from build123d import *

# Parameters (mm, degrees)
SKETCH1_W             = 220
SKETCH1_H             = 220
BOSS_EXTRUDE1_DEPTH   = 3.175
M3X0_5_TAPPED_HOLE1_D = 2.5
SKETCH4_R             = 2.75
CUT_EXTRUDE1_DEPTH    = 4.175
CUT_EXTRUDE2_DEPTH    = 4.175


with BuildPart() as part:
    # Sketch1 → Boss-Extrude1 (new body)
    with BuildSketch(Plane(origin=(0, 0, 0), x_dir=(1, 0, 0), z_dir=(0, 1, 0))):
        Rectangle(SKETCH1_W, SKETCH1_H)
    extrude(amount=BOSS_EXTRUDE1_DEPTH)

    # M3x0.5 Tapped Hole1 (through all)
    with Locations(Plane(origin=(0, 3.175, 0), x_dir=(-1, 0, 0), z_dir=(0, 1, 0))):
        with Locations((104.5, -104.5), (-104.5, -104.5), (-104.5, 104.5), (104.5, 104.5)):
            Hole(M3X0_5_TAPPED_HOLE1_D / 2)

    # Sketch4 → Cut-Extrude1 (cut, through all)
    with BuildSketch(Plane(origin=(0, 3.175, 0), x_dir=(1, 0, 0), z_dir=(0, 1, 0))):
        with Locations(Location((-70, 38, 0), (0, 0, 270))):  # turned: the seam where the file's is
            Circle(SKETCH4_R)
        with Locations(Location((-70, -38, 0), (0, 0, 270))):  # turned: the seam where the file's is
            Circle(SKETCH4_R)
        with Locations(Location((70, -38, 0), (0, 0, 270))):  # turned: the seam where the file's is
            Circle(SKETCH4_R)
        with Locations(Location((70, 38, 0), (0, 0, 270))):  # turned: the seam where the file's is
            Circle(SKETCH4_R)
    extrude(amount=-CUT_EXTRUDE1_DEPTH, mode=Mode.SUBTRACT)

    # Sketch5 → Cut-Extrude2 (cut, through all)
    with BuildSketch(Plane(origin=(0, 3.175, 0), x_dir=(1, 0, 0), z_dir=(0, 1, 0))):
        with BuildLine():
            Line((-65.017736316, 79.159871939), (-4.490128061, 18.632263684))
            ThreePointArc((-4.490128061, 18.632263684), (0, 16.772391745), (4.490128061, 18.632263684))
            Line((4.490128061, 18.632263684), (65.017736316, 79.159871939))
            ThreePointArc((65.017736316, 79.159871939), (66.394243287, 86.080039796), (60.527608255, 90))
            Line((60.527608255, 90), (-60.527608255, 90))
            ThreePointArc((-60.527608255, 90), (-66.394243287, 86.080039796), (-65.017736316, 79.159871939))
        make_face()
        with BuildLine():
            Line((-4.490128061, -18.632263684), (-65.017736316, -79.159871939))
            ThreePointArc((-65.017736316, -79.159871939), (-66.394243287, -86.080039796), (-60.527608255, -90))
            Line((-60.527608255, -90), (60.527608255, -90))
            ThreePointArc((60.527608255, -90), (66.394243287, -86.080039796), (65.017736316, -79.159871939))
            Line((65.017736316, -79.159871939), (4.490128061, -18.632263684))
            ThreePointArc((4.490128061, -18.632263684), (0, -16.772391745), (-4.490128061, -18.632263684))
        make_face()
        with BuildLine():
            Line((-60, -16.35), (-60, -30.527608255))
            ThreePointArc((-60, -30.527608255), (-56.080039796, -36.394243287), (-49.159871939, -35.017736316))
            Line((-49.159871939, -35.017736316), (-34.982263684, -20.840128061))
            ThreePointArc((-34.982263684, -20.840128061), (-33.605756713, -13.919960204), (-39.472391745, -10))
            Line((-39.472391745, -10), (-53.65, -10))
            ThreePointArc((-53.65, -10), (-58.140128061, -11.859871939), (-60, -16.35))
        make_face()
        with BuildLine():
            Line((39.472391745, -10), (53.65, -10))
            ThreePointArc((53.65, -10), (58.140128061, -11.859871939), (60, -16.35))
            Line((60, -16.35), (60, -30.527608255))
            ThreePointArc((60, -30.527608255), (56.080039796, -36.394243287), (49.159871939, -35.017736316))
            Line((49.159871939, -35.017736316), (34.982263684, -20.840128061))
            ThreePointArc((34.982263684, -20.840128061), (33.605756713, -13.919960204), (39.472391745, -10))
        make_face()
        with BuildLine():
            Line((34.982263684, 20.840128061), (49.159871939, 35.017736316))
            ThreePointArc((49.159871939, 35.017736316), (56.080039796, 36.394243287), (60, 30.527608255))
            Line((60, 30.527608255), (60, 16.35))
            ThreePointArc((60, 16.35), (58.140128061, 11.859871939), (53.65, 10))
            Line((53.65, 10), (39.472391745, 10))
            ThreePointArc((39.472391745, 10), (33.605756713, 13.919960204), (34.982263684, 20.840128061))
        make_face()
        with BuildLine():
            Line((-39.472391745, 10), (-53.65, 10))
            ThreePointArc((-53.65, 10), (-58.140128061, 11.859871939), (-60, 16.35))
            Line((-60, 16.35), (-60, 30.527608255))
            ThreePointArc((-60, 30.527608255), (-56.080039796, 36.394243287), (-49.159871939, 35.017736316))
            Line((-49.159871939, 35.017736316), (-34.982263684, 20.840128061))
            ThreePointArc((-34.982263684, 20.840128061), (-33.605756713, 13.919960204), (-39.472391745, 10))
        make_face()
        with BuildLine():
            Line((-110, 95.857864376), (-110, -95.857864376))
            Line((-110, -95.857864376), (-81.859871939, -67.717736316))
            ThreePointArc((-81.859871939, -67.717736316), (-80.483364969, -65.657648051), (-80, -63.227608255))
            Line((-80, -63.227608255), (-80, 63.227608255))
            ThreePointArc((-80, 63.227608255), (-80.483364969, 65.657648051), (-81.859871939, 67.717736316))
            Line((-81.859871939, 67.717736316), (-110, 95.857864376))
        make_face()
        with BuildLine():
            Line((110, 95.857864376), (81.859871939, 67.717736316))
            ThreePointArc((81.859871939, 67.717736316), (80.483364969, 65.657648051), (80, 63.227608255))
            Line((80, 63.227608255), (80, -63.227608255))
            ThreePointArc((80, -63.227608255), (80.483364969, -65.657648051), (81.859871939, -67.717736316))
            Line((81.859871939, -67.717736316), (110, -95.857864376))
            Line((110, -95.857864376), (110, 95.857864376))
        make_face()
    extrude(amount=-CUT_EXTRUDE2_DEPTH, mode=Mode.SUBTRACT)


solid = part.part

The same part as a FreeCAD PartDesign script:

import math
import FreeCAD as App
import Part
import Sketcher
Q = App.Units.Quantity

doc = App.newDocument("Part")
body = doc.addObject("PartDesign::Body", "Body")

# Sketch on XZ plane
sketch1 = body.newObject("Sketcher::SketchObject", "Sketch")
sketch1.AttachmentSupport = (doc.getObject("XZ_Plane"), [""])
sketch1.MapMode = "FlatFace"
sketch1.addGeometry([
    Part.LineSegment(App.Vector(-110, -110, 0), App.Vector(-110, 110, 0)),
    Part.LineSegment(App.Vector(-110, 110, 0), App.Vector(110, 110, 0)),
    Part.LineSegment(App.Vector(110, 110, 0), App.Vector(110, -110, 0)),
    Part.LineSegment(App.Vector(110, -110, 0), App.Vector(-110, -110, 0)),
], False)
sketch1.addConstraint([
    Sketcher.Constraint("Coincident", 0, 2, 1, 1),
    Sketcher.Constraint("Coincident", 1, 2, 2, 1),
    Sketcher.Constraint("Coincident", 2, 2, 3, 1),
    Sketcher.Constraint("Coincident", 3, 2, 0, 1),
    Sketcher.Constraint("Vertical", 0),
    Sketcher.Constraint("Horizontal", 1),
    Sketcher.Constraint("Vertical", 2),
    Sketcher.Constraint("Horizontal", 3),
    Sketcher.Constraint("Symmetric", 0, 2, 2, 2, -1, 1),
    Sketcher.Constraint("Equal", 3, 0),
    Sketcher.Constraint("DistanceX", 1, 1, 1, 2, Q("220 mm")),
])
pad1 = body.newObject("PartDesign::Pad", "Pad")
pad1.Profile = sketch1
pad1.Length = 3.175
pad1.Reversed = True

# Sketch on XZ plane
sketch2 = body.newObject("Sketcher::SketchObject", "Sketch001")
sketch2.AttachmentSupport = (doc.getObject("XZ_Plane"), [""])
sketch2.MapMode = "FlatFace"
sketch2.AttachmentOffset = App.Placement(App.Vector(0, 0, -3.175), App.Rotation())
sketch2.addGeometry([
    Part.Circle(App.Vector(-104.5, -104.5, 0), App.Vector(0, 0, 1), 1.2),
    Part.Circle(App.Vector(104.5, -104.5, 0), App.Vector(0, 0, 1), 1.2),
    Part.Circle(App.Vector(104.5, 104.5, 0), App.Vector(0, 0, 1), 1.2),
    Part.Circle(App.Vector(-104.5, 104.5, 0), App.Vector(0, 0, 1), 1.2),
], False)
sketch2.addConstraint([
    Sketcher.Constraint("Equal", 0, 1),
    Sketcher.Constraint("Equal", 1, 2),
    Sketcher.Constraint("Equal", 2, 3),
    Sketcher.Constraint("Symmetric", 0, 3, 2, 3, -1, 1),
    Sketcher.Constraint("Symmetric", 1, 3, 3, 3, -1, 1),
    Sketcher.Constraint("Symmetric", 0, 3, 1, 3, -2),
    Sketcher.Constraint("Diameter", 0, Q("2.5 mm")),
    Sketcher.Constraint("DistanceX", 0, 3, 1, 3, Q("209 mm")),
    Sketcher.Constraint("DistanceY", 1, 3, 2, 3, Q("209 mm")),
])
doc.recompute()
hole = body.newObject("PartDesign::Hole", "Hole")
hole.Profile = sketch2
hole.ThreadType = "None"
hole.Diameter = 2.5
hole.DepthType = "ThroughAll"
hole.Reversed = True

# Sketch on XZ plane
sketch3 = body.newObject("Sketcher::SketchObject", "Sketch002")
sketch3.AttachmentSupport = (doc.getObject("XZ_Plane"), [""])
sketch3.MapMode = "FlatFace"
sketch3.AttachmentOffset = App.Placement(App.Vector(0, 0, -3.175), App.Rotation())
sketch3.addGeometry([
    Part.Circle(App.Vector(-70, -38, 0), App.Vector(0, 0, 1), 2.8),
    Part.Circle(App.Vector(-70, 38, 0), App.Vector(0, 0, 1), 2.8),
    Part.Circle(App.Vector(70, 38, 0), App.Vector(0, 0, 1), 2.8),
    Part.Circle(App.Vector(70, -38, 0), App.Vector(0, 0, 1), 2.8),
], False)
sketch3.addConstraint([
    Sketcher.Constraint("Equal", 0, 1),
    Sketcher.Constraint("Equal", 1, 2),
    Sketcher.Constraint("Equal", 2, 3),
    Sketcher.Constraint("Symmetric", 0, 3, 2, 3, -1, 1),
    Sketcher.Constraint("Symmetric", 1, 3, 3, 3, -1, 1),
    Sketcher.Constraint("Symmetric", 1, 3, 2, 3, -2),
    Sketcher.Constraint("Diameter", 0, Q("5.5 mm")),
    Sketcher.Constraint("DistanceX", 0, 3, -1, 1, Q("70 mm")),
    Sketcher.Constraint("DistanceY", 0, 3, -1, 1, Q("38 mm")),
])
pocket1 = body.newObject("PartDesign::Pocket", "Pocket")
pocket1.Profile = sketch3
pocket1.Type = "ThroughAll"
pocket1.Reversed = True

# Sketch on XZ plane
sketch4 = body.newObject("Sketcher::SketchObject", "Sketch003")
sketch4.AttachmentSupport = (doc.getObject("XZ_Plane"), [""])
sketch4.MapMode = "FlatFace"
sketch4.AttachmentOffset = App.Placement(App.Vector(0, 0, -3.175), App.Rotation())
sketch4.addGeometry([
    Part.LineSegment(App.Vector(-65, -79.2, 0), App.Vector(-4.5, -18.6, 0)),  # 0
    Part.ArcOfCircle(Part.Circle(App.Vector(0, -23.1, 0), App.Vector(0, 0, 1), 6.4), math.radians(45), math.radians(135)),  # 1
    Part.LineSegment(App.Vector(4.5, -18.6, 0), App.Vector(65, -79.2, 0)),  # 2
    Part.ArcOfCircle(Part.Circle(App.Vector(60.5, -83.7, 0), App.Vector(0, 0, 1), 6.3), math.radians(-90), math.radians(45)),  # 3
    Part.LineSegment(App.Vector(60.5, -90, 0), App.Vector(-60.5, -90, 0)),  # 4
    Part.ArcOfCircle(Part.Circle(App.Vector(-60.5, -83.7, 0), App.Vector(0, 0, 1), 6.3), math.radians(135), math.radians(270)),  # 5
    Part.LineSegment(App.Vector(-4.5, 18.6, 0), App.Vector(-65, 79.2, 0)),  # 6
    Part.ArcOfCircle(Part.Circle(App.Vector(-60.5, 83.7, 0), App.Vector(0, 0, 1), 6.3), math.radians(90), math.radians(225)),  # 7
    Part.LineSegment(App.Vector(-60.5, 90, 0), App.Vector(60.5, 90, 0)),  # 8
    Part.ArcOfCircle(Part.Circle(App.Vector(60.5, 83.7, 0), App.Vector(0, 0, 1), 6.3), math.radians(-45), math.radians(90)),  # 9
    Part.LineSegment(App.Vector(65, 79.2, 0), App.Vector(4.5, 18.6, 0)),  # 10
    Part.ArcOfCircle(Part.Circle(App.Vector(0, 23.1, 0), App.Vector(0, 0, 1), 6.4), math.radians(-135), math.radians(-45)),  # 11
    Part.LineSegment(App.Vector(-60, 16.4, 0), App.Vector(-60, 30.5, 0)),  # 12
    Part.ArcOfCircle(Part.Circle(App.Vector(-53.6, 30.5, 0), App.Vector(0, 0, 1), 6.3), math.radians(45), math.radians(180)),  # 13
    Part.LineSegment(App.Vector(-49.2, 35, 0), App.Vector(-35, 20.8, 0)),  # 14
    Part.ArcOfCircle(Part.Circle(App.Vector(-39.5, 16.4, 0), App.Vector(0, 0, 1), 6.3), math.radians(-90), math.radians(45)),  # 15
    Part.LineSegment(App.Vector(-39.5, 10, 0), App.Vector(-53.6, 10, 0)),  # 16
    Part.ArcOfCircle(Part.Circle(App.Vector(-53.7, 16.3, 0), App.Vector(0, 0, 1), 6.3), math.radians(180), math.radians(270)),  # 17
    Part.LineSegment(App.Vector(53.6, 10, 0), App.Vector(39.5, 10, 0)),  # 18
    Part.ArcOfCircle(Part.Circle(App.Vector(39.5, 16.4, 0), App.Vector(0, 0, 1), 6.3), math.radians(135), math.radians(270)),  # 19
    Part.LineSegment(App.Vector(35, 20.8, 0), App.Vector(49.2, 35, 0)),  # 20
    Part.ArcOfCircle(Part.Circle(App.Vector(53.6, 30.5, 0), App.Vector(0, 0, 1), 6.3), math.radians(0), math.radians(135)),  # 21
    Part.LineSegment(App.Vector(60, 30.5, 0), App.Vector(60, 16.4, 0)),  # 22
    Part.ArcOfCircle(Part.Circle(App.Vector(53.7, 16.3, 0), App.Vector(0, 0, 1), 6.3), math.radians(-90), math.radians(0)),  # 23
    Part.LineSegment(App.Vector(49.2, -35, 0), App.Vector(35, -20.8, 0)),  # 24
    Part.ArcOfCircle(Part.Circle(App.Vector(39.5, -16.4, 0), App.Vector(0, 0, 1), 6.3), math.radians(90), math.radians(225)),  # 25
    Part.LineSegment(App.Vector(39.5, -10, 0), App.Vector(53.6, -10, 0)),  # 26
    Part.ArcOfCircle(Part.Circle(App.Vector(53.7, -16.3, 0), App.Vector(0, 0, 1), 6.3), math.radians(0), math.radians(90)),  # 27
    Part.LineSegment(App.Vector(60, -16.4, 0), App.Vector(60, -30.5, 0)),  # 28
    Part.ArcOfCircle(Part.Circle(App.Vector(53.6, -30.5, 0), App.Vector(0, 0, 1), 6.3), math.radians(-135), math.radians(0)),  # 29
    Part.LineSegment(App.Vector(-53.6, -10, 0), App.Vector(-39.5, -10, 0)),  # 30
    Part.ArcOfCircle(Part.Circle(App.Vector(-39.5, -16.4, 0), App.Vector(0, 0, 1), 6.3), math.radians(-45), math.radians(90)),  # 31
    Part.LineSegment(App.Vector(-35, -20.8, 0), App.Vector(-49.2, -35, 0)),  # 32
    Part.ArcOfCircle(Part.Circle(App.Vector(-53.6, -30.5, 0), App.Vector(0, 0, 1), 6.3), math.radians(180), math.radians(315)),  # 33
    Part.LineSegment(App.Vector(-60, -30.5, 0), App.Vector(-60, -16.4, 0)),  # 34
    Part.ArcOfCircle(Part.Circle(App.Vector(-53.7, -16.3, 0), App.Vector(0, 0, 1), 6.3), math.radians(90), math.radians(180)),  # 35
    Part.LineSegment(App.Vector(-110, -95.9, 0), App.Vector(-110, 95.9, 0)),  # 36
    Part.LineSegment(App.Vector(-110, 95.9, 0), App.Vector(-81.9, 67.7, 0)),  # 37
    Part.ArcOfCircle(Part.Circle(App.Vector(-86.4, 63.2, 0), App.Vector(0, 0, 1), 6.4), math.radians(0), math.radians(45)),  # 38
    Part.LineSegment(App.Vector(-80, 63.2, 0), App.Vector(-80, -63.2, 0)),  # 39
    Part.ArcOfCircle(Part.Circle(App.Vector(-86.4, -63.2, 0), App.Vector(0, 0, 1), 6.4), math.radians(-45), math.radians(0)),  # 40
    Part.LineSegment(App.Vector(-81.9, -67.7, 0), App.Vector(-110, -95.9, 0)),  # 41
    Part.LineSegment(App.Vector(110, -95.9, 0), App.Vector(81.9, -67.7, 0)),  # 42
    Part.ArcOfCircle(Part.Circle(App.Vector(86.4, -63.2, 0), App.Vector(0, 0, 1), 6.4), math.radians(-180), math.radians(-135)),  # 43
    Part.LineSegment(App.Vector(80, -63.2, 0), App.Vector(80, 63.2, 0)),  # 44
    Part.ArcOfCircle(Part.Circle(App.Vector(86.4, 63.2, 0), App.Vector(0, 0, 1), 6.4), math.radians(135), math.radians(180)),  # 45
    Part.LineSegment(App.Vector(81.9, 67.7, 0), App.Vector(110, 95.9, 0)),  # 46
    Part.LineSegment(App.Vector(110, 95.9, 0), App.Vector(110, -95.9, 0)),  # 47
], False)
sketch4.addConstraint([
    Sketcher.Constraint("Tangent", 0, 2, 1, 2),
    Sketcher.Constraint("Tangent", 1, 1, 2, 1),
    Sketcher.Constraint("Tangent", 2, 2, 3, 2),
    Sketcher.Constraint("Tangent", 3, 1, 4, 1),
    Sketcher.Constraint("Tangent", 4, 2, 5, 2),
    Sketcher.Constraint("Tangent", 5, 1, 0, 1),
    Sketcher.Constraint("Tangent", 6, 2, 7, 2),
    Sketcher.Constraint("Tangent", 7, 1, 8, 1),
    Sketcher.Constraint("Tangent", 8, 2, 9, 2),
    Sketcher.Constraint("Tangent", 9, 1, 10, 1),
    Sketcher.Constraint("Tangent", 10, 2, 11, 2),
    Sketcher.Constraint("Tangent", 11, 1, 6, 1),
    Sketcher.Constraint("Tangent", 12, 2, 13, 2),
    Sketcher.Constraint("Tangent", 13, 1, 14, 1),
    Sketcher.Constraint("Tangent", 14, 2, 15, 2),
    Sketcher.Constraint("Tangent", 15, 1, 16, 1),
    Sketcher.Constraint("Tangent", 16, 2, 17, 2),
    Sketcher.Constraint("Tangent", 17, 1, 12, 1),
    Sketcher.Constraint("Tangent", 18, 2, 19, 2),
    Sketcher.Constraint("Tangent", 19, 1, 20, 1),
    Sketcher.Constraint("Tangent", 20, 2, 21, 2),
    Sketcher.Constraint("Tangent", 21, 1, 22, 1),
    Sketcher.Constraint("Tangent", 22, 2, 23, 2),
    Sketcher.Constraint("Tangent", 23, 1, 18, 1),
    Sketcher.Constraint("Tangent", 24, 2, 25, 2),
    Sketcher.Constraint("Tangent", 25, 1, 26, 1),
    Sketcher.Constraint("Tangent", 26, 2, 27, 2),
    Sketcher.Constraint("Tangent", 27, 1, 28, 1),
    Sketcher.Constraint("Tangent", 28, 2, 29, 2),
    Sketcher.Constraint("Tangent", 29, 1, 24, 1),
    Sketcher.Constraint("Tangent", 30, 2, 31, 2),
    Sketcher.Constraint("Tangent", 31, 1, 32, 1),
    Sketcher.Constraint("Tangent", 32, 2, 33, 2),
    Sketcher.Constraint("Tangent", 33, 1, 34, 1),
    Sketcher.Constraint("Tangent", 34, 2, 35, 2),
    Sketcher.Constraint("Tangent", 35, 1, 30, 1),
    Sketcher.Constraint("Coincident", 36, 2, 37, 1),
    Sketcher.Constraint("Tangent", 37, 2, 38, 2),
    Sketcher.Constraint("Tangent", 38, 1, 39, 1),
    Sketcher.Constraint("Tangent", 39, 2, 40, 2),
    Sketcher.Constraint("Tangent", 40, 1, 41, 1),
    Sketcher.Constraint("Coincident", 41, 2, 36, 1),
    Sketcher.Constraint("Tangent", 42, 2, 43, 2),
    Sketcher.Constraint("Tangent", 43, 1, 44, 1),
    Sketcher.Constraint("Tangent", 44, 2, 45, 2),
    Sketcher.Constraint("Tangent", 45, 1, 46, 1),
    Sketcher.Constraint("Coincident", 46, 2, 47, 1),
    Sketcher.Constraint("Coincident", 47, 2, 42, 1),
    Sketcher.Constraint("Horizontal", 4),
    Sketcher.Constraint("Horizontal", 8),
    Sketcher.Constraint("Vertical", 12),
    Sketcher.Constraint("Horizontal", 16),
    Sketcher.Constraint("Horizontal", 18),
    Sketcher.Constraint("Vertical", 22),
    Sketcher.Constraint("Horizontal", 26),
    Sketcher.Constraint("Vertical", 28),
    Sketcher.Constraint("Horizontal", 30),
    Sketcher.Constraint("Vertical", 34),
    Sketcher.Constraint("Vertical", 36),
    Sketcher.Constraint("Vertical", 39),
    Sketcher.Constraint("Vertical", 44),
    Sketcher.Constraint("Vertical", 47),
    Sketcher.Constraint("Equal", 1, 3),
    Sketcher.Constraint("Equal", 3, 5),
    Sketcher.Constraint("Equal", 5, 7),
    Sketcher.Constraint("Equal", 7, 9),
    Sketcher.Constraint("Equal", 9, 11),
    Sketcher.Constraint("Equal", 11, 13),
    Sketcher.Constraint("Equal", 13, 15),
    Sketcher.Constraint("Equal", 15, 17),
    Sketcher.Constraint("Equal", 17, 19),
    Sketcher.Constraint("Equal", 19, 21),
    Sketcher.Constraint("Equal", 21, 23),
    Sketcher.Constraint("Equal", 23, 25),
    Sketcher.Constraint("Equal", 25, 27),
    Sketcher.Constraint("Equal", 27, 29),
    Sketcher.Constraint("Equal", 29, 31),
    Sketcher.Constraint("Equal", 31, 33),
    Sketcher.Constraint("Equal", 33, 35),
    Sketcher.Constraint("Equal", 35, 38),
    Sketcher.Constraint("Equal", 38, 40),
    Sketcher.Constraint("Equal", 40, 43),
    Sketcher.Constraint("Equal", 43, 45),
    Sketcher.Constraint("Symmetric", 3, 3, 7, 3, -1, 1),
    Sketcher.Constraint("Symmetric", 1, 3, 11, 3, -1, 1),
    Sketcher.Constraint("Symmetric", 15, 3, 25, 3, -1, 1),
    Sketcher.Constraint("Symmetric", 13, 3, 29, 3, -1, 1),
    Sketcher.Constraint("Symmetric", 19, 3, 31, 3, -1, 1),
    Sketcher.Constraint("Symmetric", 21, 3, 33, 3, -1, 1),
    Sketcher.Constraint("Symmetric", 38, 3, 43, 3, -1, 1),
    Sketcher.Constraint("Symmetric", 40, 1, 45, 1, -1, 1),
    Sketcher.Constraint("Symmetric", 36, 2, 47, 2, -1, 1),
    Sketcher.Constraint("Symmetric", 15, 3, 19, 3, -2),
    Sketcher.Constraint("Symmetric", 13, 3, 21, 3, -2),
    Sketcher.Constraint("Symmetric", 0, 2, 1, 1, -2),
    Sketcher.Constraint("Symmetric", 40, 1, 42, 2, -2),
    Sketcher.Constraint("Perpendicular", 0, 2),
    Sketcher.Constraint("Perpendicular", 6, 10),
    Sketcher.Constraint("Perpendicular", 10, 14),
    Sketcher.Constraint("Perpendicular", 32, 37),
    Sketcher.Constraint("Radius", 1, Q("6.35 mm")),
    Sketcher.Constraint("DistanceY", 3, 1, -1, 1, Q("90 mm")),
    Sketcher.Constraint("DistanceX", 12, 2, -1, 1, Q("60 mm")),
    Sketcher.Constraint("DistanceY", -1, 1, 15, 1, Q("10 mm")),
    Sketcher.Constraint("DistanceX", 36, 2, -1, 1, Q("110 mm")),
    Sketcher.Constraint("DistanceX", 38, 1, -1, 1, Q("80 mm")),
    Sketcher.Constraint("DistanceX", 16, 2, 16, 1, Q("14.177608 mm")),
    Sketcher.Constraint("DistanceY", 36, 1, 36, 2, Q("191.715729 mm")),
    Sketcher.Constraint("DistanceX", 4, 2, 4, 1, Q("121.055217 mm")),
])
pocket2 = body.newObject("PartDesign::Pocket", "Pocket001")
pocket2.Profile = sketch4
pocket2.Type = "ThroughAll"
pocket2.Reversed = True

doc.recompute()
